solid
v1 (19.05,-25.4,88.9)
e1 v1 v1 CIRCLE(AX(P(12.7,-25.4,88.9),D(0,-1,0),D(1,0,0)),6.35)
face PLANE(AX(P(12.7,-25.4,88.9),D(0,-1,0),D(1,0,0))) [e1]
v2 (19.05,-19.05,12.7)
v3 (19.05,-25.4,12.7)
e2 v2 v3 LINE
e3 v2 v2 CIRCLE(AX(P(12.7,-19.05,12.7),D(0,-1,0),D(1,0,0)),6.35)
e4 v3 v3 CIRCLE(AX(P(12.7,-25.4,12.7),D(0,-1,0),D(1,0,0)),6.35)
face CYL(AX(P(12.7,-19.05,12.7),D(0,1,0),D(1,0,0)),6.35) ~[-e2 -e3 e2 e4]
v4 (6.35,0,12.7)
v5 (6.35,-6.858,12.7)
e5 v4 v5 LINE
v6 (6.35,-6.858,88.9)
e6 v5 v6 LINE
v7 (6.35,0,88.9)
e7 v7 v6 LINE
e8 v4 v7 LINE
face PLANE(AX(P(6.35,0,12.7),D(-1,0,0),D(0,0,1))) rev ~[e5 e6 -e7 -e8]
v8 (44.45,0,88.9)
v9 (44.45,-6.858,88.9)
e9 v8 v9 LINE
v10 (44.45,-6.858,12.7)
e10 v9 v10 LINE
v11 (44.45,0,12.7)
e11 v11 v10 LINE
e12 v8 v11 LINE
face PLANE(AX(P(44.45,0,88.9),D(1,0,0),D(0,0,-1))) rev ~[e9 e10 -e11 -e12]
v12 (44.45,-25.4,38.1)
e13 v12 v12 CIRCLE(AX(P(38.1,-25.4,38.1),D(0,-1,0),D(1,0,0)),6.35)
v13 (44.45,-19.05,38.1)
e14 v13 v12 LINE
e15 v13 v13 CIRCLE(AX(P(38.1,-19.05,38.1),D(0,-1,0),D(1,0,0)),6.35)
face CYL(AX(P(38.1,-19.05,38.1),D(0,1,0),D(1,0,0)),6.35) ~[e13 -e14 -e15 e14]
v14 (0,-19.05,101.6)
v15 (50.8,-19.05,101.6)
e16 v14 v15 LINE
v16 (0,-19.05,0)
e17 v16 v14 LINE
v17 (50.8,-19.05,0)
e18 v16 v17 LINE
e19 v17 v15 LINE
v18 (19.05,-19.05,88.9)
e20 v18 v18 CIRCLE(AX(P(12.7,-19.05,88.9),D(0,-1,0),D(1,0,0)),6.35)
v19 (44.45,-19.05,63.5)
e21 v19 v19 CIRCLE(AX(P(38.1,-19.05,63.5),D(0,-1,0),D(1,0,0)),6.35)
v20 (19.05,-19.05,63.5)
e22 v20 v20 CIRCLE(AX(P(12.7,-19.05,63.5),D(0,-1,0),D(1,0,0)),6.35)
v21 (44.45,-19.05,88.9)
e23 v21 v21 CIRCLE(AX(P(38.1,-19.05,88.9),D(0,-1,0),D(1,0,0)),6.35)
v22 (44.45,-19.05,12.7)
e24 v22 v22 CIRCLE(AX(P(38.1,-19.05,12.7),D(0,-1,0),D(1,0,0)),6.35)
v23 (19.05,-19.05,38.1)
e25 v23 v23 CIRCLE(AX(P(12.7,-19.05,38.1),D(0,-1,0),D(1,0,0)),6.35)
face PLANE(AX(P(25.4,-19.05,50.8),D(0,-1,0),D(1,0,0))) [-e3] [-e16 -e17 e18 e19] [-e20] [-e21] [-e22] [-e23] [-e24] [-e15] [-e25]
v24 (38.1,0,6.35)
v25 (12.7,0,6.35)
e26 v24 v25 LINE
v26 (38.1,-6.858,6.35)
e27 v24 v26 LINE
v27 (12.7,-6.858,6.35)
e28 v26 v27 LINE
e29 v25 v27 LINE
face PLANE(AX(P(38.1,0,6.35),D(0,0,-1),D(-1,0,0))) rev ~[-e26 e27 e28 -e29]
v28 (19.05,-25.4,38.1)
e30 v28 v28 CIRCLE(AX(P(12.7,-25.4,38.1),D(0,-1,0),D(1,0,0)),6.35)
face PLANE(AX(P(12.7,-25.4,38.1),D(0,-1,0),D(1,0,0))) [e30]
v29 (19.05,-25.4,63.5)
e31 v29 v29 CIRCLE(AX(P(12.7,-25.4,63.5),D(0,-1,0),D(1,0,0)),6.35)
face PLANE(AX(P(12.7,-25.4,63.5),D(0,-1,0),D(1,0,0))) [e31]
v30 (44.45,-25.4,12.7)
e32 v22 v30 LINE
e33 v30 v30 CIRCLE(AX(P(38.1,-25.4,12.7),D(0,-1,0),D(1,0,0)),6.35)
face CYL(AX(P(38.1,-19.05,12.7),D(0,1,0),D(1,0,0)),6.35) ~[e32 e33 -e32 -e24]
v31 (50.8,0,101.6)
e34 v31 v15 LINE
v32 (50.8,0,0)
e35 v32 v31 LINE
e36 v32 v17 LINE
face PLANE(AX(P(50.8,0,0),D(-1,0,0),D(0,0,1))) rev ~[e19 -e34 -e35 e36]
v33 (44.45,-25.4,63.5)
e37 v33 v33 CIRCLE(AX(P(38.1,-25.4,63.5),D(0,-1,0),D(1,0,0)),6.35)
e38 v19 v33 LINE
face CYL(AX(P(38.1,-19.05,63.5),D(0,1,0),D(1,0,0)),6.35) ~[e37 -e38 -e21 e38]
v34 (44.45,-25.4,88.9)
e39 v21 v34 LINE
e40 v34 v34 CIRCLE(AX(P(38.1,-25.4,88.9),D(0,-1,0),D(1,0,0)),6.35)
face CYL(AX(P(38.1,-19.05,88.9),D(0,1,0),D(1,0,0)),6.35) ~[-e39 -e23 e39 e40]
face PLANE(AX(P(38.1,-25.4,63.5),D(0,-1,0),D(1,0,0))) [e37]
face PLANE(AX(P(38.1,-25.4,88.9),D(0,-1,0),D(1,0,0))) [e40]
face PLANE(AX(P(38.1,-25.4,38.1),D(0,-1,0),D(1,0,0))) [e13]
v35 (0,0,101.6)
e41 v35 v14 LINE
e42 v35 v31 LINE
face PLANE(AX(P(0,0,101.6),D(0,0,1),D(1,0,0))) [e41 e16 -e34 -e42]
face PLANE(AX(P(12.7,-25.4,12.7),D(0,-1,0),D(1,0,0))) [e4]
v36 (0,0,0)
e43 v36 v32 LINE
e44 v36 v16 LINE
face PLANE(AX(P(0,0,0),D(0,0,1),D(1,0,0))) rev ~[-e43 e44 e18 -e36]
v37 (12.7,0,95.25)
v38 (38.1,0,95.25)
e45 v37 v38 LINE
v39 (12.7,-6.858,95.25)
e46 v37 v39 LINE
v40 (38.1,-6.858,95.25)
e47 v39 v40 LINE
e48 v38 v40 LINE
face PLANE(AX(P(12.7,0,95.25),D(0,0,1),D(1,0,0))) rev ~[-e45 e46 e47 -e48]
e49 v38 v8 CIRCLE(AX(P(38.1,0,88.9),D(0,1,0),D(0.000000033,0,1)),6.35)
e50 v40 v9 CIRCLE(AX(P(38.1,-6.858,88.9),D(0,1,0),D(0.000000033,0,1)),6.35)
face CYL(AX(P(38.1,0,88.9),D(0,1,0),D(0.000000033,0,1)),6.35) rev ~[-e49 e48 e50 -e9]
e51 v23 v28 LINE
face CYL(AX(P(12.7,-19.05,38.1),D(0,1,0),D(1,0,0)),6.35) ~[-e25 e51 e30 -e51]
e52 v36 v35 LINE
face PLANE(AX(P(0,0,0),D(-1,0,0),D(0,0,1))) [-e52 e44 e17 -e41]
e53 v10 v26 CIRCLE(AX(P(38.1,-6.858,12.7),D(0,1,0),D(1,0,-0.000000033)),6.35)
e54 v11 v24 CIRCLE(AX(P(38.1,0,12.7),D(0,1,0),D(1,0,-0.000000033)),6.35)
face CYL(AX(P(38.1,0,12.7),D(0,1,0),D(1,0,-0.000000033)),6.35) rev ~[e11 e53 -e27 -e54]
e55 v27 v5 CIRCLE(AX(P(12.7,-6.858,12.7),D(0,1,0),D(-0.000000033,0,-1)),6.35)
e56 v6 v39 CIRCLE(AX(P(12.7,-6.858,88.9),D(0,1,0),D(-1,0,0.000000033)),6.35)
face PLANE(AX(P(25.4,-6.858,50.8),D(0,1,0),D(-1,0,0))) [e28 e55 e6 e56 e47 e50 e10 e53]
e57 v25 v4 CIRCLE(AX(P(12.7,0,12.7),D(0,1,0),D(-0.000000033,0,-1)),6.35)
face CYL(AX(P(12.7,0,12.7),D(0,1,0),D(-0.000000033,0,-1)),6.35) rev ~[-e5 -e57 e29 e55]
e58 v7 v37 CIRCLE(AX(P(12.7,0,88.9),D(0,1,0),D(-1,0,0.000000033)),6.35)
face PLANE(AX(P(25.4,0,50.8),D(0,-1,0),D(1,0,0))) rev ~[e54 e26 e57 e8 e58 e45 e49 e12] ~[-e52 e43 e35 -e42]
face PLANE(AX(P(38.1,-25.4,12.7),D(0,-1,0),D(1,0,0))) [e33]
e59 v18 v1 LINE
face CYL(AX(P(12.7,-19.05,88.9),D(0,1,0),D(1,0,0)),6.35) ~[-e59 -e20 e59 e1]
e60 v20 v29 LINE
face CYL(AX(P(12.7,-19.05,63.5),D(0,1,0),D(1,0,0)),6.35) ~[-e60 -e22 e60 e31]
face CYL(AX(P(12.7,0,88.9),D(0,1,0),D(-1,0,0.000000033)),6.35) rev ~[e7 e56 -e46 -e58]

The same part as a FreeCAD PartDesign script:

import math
import FreeCAD as App
import Part
import Sketcher

V = App.Vector
Q = App.Units.Quantity


def add_polygon(sketch, points):
    """Adds a closed chain of lines whose ends are joined by coincident constraints."""
    first, n = sketch.GeometryCount, len(points)
    for a, b in zip(points, points[1:] + points[:1]):
        sketch.addGeometry(Part.LineSegment(App.Vector(*a, 0), App.Vector(*b, 0)), False)
    for i in range(n):
        sketch.addConstraint(Sketcher.Constraint("Coincident", first + i, 2, first + (i + 1) % n, 1))

doc = App.newDocument("Part")
body = doc.addObject("PartDesign::Body", "Body")

# Sketch on XZ plane
sketch1 = body.newObject("Sketcher::SketchObject", "Sketch")
sketch1.AttachmentSupport = (doc.getObject("XZ_Plane"), [""])
sketch1.MapMode = "FlatFace"
add_polygon(sketch1, [(0, 102), (0, 0), (51, 0), (51, 102)])  # lines 0-3
sketch1.addConstraint(Sketcher.Constraint("Vertical", 0))
sketch1.addConstraint(Sketcher.Constraint("Horizontal", 1))
sketch1.addConstraint(Sketcher.Constraint("Vertical", 2))
sketch1.addConstraint(Sketcher.Constraint("Horizontal", 3))
sketch1.addConstraint(Sketcher.Constraint("Coincident", 0, 2, -1, 1))
sketch1.addConstraint(Sketcher.Constraint("DistanceX", 1, 1, 1, 2, Q("2 in")))
sketch1.addConstraint(Sketcher.Constraint("DistanceY", 0, 2, 0, 1, Q("4 in")))
pad1 = body.newObject("PartDesign::Pad", "Pad")
pad1.Profile = sketch1
pad1.Length = Q("0.75 in")

# Sketch on XZ plane
sketch2 = body.newObject("Sketcher::SketchObject", "Sketch001")
sketch2.AttachmentSupport = (doc.getObject("XZ_Plane"), [""])
sketch2.MapMode = "FlatFace"
sketch2.AttachmentOffset = App.Placement(V(0, 0, 0.75 * 25.4), App.Rotation())
sketch2.addGeometry(Part.Circle(V(13, 89, 0), V(0, 0, 1), 6), False)
sketch2.addGeometry(Part.Circle(V(38, 89, 0), V(0, 0, 1), 6), False)
sketch2.addGeometry(Part.Circle(V(13, 64, 0), V(0, 0, 1), 6), False)
sketch2.addGeometry(Part.Circle(V(38, 64, 0), V(0, 0, 1), 6), False)
sketch2.addGeometry(Part.Circle(V(13, 38, 0), V(0, 0, 1), 6), False)
sketch2.addGeometry(Part.Circle(V(38, 38, 0), V(0, 0, 1), 6), False)
sketch2.addGeometry(Part.Circle(V(13, 13, 0), V(0, 0, 1), 6), False)
sketch2.addGeometry(Part.Circle(V(38, 13, 0), V(0, 0, 1), 6), False)
sketch2.addConstraint(Sketcher.Constraint("Equal", 0, 1))
sketch2.addConstraint(Sketcher.Constraint("Equal", 1, 2))
sketch2.addConstraint(Sketcher.Constraint("Equal", 2, 3))
sketch2.addConstraint(Sketcher.Constraint("Equal", 3, 4))
sketch2.addConstraint(Sketcher.Constraint("Equal", 4, 5))
sketch2.addConstraint(Sketcher.Constraint("Equal", 5, 6))
sketch2.addConstraint(Sketcher.Constraint("Equal", 6, 7))
sketch2.addConstraint(Sketcher.Constraint("Horizontal", 0, 3, 1, 3))
sketch2.addConstraint(Sketcher.Constraint("Horizontal", 2, 3, 3, 3))
sketch2.addConstraint(Sketcher.Constraint("Horizontal", 4, 3, 5, 3))
sketch2.addConstraint(Sketcher.Constraint("Horizontal", 6, 3, 7, 3))
sketch2.addConstraint(Sketcher.Constraint("Vertical", 0, 3, 2, 3))
sketch2.addConstraint(Sketcher.Constraint("Vertical", 1, 3, 3, 3))
sketch2.addConstraint(Sketcher.Constraint("Vertical", 2, 3, 4, 3))
sketch2.addConstraint(Sketcher.Constraint("Vertical", 3, 3, 5, 3))
sketch2.addConstraint(Sketcher.Constraint("Vertical", 4, 3, 6, 3))
sketch2.addConstraint(Sketcher.Constraint("Vertical", 5, 3, 7, 3))
sketch2.addConstraint(Sketcher.Constraint("Diameter", 0, Q("0.5 in")))
sketch2.addConstraint(Sketcher.Constraint("DistanceX", 0, 3, 1, 3, Q("1 in")))
sketch2.addConstraint(Sketcher.Constraint("DistanceY", 2, 3, 0, 3, Q("1 in")))
sketch2.addConstraint(Sketcher.Constraint("DistanceY", 4, 3, 2, 3, Q("1 in")))
sketch2.addConstraint(Sketcher.Constraint("DistanceY", 6, 3, 4, 3, Q("1 in")))
sketch2.addConstraint(Sketcher.Constraint("DistanceX", -1, 1, 0, 3, Q("0.5 in")))
sketch2.addConstraint(Sketcher.Constraint("DistanceY", -1, 1, 0, 3, Q("3.5 in")))
pad2 = body.newObject("PartDesign::Pad", "Pad001")
pad2.Profile = sketch2
pad2.Length = Q("0.25 in")

# Sketch on XZ plane
sketch3 = body.newObject("Sketcher::SketchObject", "Sketch002")
sketch3.AttachmentSupport = (doc.getObject("XZ_Plane"), [""])
sketch3.MapMode = "FlatFace"
sketch3.addGeometry(Part.LineSegment(V(13, 95, 0), V(38, 95, 0)), False)
sketch3.addGeometry(Part.ArcOfCircle(Part.Circle(V(38, 89, 0), V(0, 0, 1), 6), math.radians(0), math.radians(90)), False)
sketch3.addGeometry(Part.LineSegment(V(44, 89, 0), V(44, 13, 0)), False)
sketch3.addGeometry(Part.ArcOfCircle(Part.Circle(V(38, 13, 0), V(0, 0, 1), 6), math.radians(-90), math.radians(0)), False)
sketch3.addGeometry(Part.LineSegment(V(38, 6, 0), V(13, 6, 0)), False)
sketch3.addGeometry(Part.ArcOfCircle(Part.Circle(V(13, 13, 0), V(0, 0, 1), 6), math.radians(-180), math.radians(-90)), False)
sketch3.addGeometry(Part.LineSegment(V(6, 13, 0), V(6, 89, 0)), False)
sketch3.addGeometry(Part.ArcOfCircle(Part.Circle(V(13, 89, 0), V(0, 0, 1), 6), math.radians(90), math.radians(180)), False)
sketch3.addConstraint(Sketcher.Constraint("Tangent", 0, 2, 1, 2))
sketch3.addConstraint(Sketcher.Constraint("Tangent", 1, 1, 2, 1))
sketch3.addConstraint(Sketcher.Constraint("Tangent", 2, 2, 3, 2))
sketch3.addConstraint(Sketcher.Constraint("Tangent", 3, 1, 4, 1))
sketch3.addConstraint(Sketcher.Constraint("Tangent", 4, 2, 5, 2))
sketch3.addConstraint(Sketcher.Constraint("Tangent", 5, 1, 6, 1))
sketch3.addConstraint(Sketcher.Constraint("Tangent", 6, 2, 7, 2))
sketch3.addConstraint(Sketcher.Constraint("Tangent", 7, 1, 0, 1))
sketch3.addConstraint(Sketcher.Constraint("Horizontal", 0))
sketch3.addConstraint(Sketcher.Constraint("Vertical", 2))
sketch3.addConstraint(Sketcher.Constraint("Horizontal", 4))
sketch3.addConstraint(Sketcher.Constraint("Vertical", 6))
sketch3.addConstraint(Sketcher.Constraint("Equal", 1, 3))
sketch3.addConstraint(Sketcher.Constraint("Equal", 3, 5))
sketch3.addConstraint(Sketcher.Constraint("Equal", 5, 7))
sketch3.addConstraint(Sketcher.Constraint("DistanceX", 0, 1, 0, 2, Q("1 in")))
sketch3.addConstraint(Sketcher.Constraint("DistanceY", 2, 2, 2, 1, Q("3 in")))
sketch3.addConstraint(Sketcher.Constraint("Radius", 1, Q("0.25 in")))
sketch3.addConstraint(Sketcher.Constraint("DistanceX", -1, 1, 1, 3, Q("1.5 in")))
sketch3.addConstraint(Sketcher.Constraint("DistanceY", -1, 1, 1, 3, Q("3.5 in")))
pocket1 = body.newObject("PartDesign::Pocket", "Pocket")
pocket1.Profile = sketch3
pocket1.Length = Q("0.27 in")
pocket1.Reversed = True

doc.recompute()
